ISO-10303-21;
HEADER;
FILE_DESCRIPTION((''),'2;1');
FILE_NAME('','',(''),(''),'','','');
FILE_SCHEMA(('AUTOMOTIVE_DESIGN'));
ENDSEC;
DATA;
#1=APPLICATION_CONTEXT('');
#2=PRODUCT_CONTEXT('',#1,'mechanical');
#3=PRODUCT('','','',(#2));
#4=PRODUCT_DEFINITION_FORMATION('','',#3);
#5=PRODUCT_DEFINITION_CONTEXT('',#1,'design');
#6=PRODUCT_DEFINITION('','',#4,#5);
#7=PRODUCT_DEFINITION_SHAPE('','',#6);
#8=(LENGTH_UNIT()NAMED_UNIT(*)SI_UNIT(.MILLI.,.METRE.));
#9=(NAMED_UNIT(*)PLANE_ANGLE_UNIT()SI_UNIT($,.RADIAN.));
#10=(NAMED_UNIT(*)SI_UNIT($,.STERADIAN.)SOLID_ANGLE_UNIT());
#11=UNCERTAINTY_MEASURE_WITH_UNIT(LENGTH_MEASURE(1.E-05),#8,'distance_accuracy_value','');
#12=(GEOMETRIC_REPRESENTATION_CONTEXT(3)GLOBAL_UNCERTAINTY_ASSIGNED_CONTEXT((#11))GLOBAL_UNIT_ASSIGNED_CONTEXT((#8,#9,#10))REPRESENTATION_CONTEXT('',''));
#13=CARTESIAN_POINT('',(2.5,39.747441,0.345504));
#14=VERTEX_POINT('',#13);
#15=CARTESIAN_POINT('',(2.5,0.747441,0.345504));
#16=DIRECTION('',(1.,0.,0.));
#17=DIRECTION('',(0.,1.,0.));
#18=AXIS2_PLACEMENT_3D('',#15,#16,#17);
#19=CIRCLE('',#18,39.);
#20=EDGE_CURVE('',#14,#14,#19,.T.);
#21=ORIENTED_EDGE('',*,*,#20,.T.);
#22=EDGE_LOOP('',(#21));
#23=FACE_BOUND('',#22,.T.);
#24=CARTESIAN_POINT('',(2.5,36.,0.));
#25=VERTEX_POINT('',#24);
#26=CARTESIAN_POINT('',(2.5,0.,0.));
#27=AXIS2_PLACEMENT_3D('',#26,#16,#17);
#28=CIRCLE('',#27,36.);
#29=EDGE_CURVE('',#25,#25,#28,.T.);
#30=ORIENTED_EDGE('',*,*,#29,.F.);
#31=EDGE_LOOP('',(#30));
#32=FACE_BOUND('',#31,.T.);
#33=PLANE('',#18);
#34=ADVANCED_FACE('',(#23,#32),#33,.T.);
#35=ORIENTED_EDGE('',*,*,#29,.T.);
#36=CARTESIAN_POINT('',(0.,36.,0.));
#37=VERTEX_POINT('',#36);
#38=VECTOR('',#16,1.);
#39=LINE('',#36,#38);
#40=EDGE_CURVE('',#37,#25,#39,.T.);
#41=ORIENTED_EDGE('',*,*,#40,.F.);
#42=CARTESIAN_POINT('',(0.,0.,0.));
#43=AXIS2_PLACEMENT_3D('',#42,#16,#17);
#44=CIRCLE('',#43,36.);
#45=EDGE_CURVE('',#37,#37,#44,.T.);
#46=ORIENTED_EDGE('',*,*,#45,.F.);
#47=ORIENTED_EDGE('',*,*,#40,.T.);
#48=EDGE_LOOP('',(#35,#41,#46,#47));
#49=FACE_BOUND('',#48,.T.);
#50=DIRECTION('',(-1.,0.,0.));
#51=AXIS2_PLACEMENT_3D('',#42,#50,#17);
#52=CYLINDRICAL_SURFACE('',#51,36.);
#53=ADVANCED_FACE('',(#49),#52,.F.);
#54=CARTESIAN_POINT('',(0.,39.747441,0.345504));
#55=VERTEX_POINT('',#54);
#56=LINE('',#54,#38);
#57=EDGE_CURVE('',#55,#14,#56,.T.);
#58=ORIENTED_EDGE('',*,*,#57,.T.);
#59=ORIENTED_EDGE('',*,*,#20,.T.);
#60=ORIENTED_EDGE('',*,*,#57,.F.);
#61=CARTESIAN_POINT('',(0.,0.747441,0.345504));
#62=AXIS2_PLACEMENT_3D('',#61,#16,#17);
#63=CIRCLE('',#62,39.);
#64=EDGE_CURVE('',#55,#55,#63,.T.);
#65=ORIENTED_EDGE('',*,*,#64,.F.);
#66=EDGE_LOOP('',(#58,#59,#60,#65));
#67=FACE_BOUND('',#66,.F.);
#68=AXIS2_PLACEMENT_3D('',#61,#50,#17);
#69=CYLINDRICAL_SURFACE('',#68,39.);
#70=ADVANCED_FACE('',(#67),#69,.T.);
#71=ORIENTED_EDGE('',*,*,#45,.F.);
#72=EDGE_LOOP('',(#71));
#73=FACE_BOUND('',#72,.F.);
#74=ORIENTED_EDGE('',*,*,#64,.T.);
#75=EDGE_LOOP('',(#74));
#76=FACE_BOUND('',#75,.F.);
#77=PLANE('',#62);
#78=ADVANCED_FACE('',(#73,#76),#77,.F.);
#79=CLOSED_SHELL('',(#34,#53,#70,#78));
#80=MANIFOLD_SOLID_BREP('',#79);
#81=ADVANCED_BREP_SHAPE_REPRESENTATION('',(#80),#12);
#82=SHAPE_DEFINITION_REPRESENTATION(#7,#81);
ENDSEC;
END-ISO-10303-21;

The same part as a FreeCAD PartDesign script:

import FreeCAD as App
import Part
import Sketcher

doc = App.newDocument("Part")
body = doc.addObject("PartDesign::Body", "Body")

# Sketch on YZ plane
sketch1 = doc.addObject("Sketcher::SketchObject", "Sketch")
body.addObject(sketch1)
sketch1.AttachmentSupport = (doc.YZ_Plane, [""])
sketch1.MapMode = "FlatFace"
sketch1.addGeometry(Part.Circle(App.Vector(1, 0, 0), App.Vector(0, 0, 1), 39), False)
sketch1.addGeometry(Part.Circle(App.Vector(0, 0, 0), App.Vector(0, 0, 1), 36), False)
sketch1.addConstraint(Sketcher.Constraint("Coincident", 1, 3, -1, 1))
sketch1.addConstraint(Sketcher.Constraint("Diameter", 0, 78.0))
sketch1.addConstraint(Sketcher.Constraint("Diameter", 1, 72.0))
sketch1.addConstraint(Sketcher.Constraint("DistanceX", -1, 1, 0, 3, 0.747441))
sketch1.addConstraint(Sketcher.Constraint("DistanceY", -1, 1, 0, 3, 0.345504))
pad1 = doc.addObject("PartDesign::Pad", "Pad")
body.addObject(pad1)
pad1.Profile = sketch1
pad1.Length = 2.5

doc.recompute()
